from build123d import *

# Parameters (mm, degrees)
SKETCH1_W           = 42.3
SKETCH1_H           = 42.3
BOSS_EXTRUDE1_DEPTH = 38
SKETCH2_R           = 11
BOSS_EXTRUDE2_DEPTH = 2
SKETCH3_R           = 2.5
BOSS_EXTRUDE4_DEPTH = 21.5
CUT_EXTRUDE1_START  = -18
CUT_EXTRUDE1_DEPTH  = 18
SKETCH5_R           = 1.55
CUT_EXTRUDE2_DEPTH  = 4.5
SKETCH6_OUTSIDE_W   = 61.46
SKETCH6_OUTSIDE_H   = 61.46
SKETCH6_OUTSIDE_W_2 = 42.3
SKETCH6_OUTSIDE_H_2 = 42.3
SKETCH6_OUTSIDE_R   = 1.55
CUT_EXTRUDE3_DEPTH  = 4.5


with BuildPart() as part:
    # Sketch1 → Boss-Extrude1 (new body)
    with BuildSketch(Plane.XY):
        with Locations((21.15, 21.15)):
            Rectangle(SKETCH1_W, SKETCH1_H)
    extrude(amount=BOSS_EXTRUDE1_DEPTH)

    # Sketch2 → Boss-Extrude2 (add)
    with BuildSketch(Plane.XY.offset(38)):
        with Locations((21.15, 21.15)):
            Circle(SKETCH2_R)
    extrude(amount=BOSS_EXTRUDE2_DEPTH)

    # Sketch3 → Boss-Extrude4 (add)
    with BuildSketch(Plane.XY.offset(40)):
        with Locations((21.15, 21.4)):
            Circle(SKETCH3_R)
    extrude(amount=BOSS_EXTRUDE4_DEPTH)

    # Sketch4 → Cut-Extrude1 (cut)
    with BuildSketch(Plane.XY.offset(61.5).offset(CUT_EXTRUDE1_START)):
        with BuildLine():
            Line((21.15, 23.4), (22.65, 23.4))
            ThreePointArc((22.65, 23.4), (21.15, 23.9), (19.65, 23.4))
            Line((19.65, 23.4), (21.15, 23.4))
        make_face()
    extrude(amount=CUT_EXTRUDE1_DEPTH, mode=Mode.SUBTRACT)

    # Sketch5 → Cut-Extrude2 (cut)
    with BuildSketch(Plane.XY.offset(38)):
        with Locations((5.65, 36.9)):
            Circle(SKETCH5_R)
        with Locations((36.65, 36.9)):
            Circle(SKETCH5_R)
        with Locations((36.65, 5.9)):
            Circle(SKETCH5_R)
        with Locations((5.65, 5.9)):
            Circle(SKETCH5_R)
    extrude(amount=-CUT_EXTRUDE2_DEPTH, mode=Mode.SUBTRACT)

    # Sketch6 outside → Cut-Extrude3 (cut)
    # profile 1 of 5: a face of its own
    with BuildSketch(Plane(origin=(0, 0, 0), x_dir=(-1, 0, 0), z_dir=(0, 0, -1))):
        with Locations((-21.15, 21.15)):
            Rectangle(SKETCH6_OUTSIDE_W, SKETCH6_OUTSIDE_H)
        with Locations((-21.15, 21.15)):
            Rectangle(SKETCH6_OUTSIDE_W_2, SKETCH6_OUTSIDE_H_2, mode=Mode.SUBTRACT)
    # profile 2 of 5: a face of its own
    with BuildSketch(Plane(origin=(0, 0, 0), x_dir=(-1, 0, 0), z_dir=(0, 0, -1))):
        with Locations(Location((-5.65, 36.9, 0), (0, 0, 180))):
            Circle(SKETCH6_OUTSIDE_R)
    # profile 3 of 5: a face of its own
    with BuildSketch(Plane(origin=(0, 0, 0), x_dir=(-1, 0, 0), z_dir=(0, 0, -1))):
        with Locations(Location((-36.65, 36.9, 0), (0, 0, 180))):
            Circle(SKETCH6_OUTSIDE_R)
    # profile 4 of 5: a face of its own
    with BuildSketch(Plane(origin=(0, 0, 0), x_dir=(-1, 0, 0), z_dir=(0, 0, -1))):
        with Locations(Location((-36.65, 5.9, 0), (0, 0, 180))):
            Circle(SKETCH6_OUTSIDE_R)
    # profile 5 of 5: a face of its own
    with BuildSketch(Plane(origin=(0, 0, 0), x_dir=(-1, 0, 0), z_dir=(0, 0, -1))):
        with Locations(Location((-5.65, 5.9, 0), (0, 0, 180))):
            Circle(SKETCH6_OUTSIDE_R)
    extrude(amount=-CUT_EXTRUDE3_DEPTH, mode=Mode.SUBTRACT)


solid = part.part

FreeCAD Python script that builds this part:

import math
import FreeCAD as App
import Part
import Sketcher
from FreeCAD import Vector

doc = App.newDocument("Part")
body = doc.addObject("PartDesign::Body", "Body")

sketch1 = body.newObject("Sketcher::SketchObject", "Sketch")
sketch1.AttachmentSupport = (doc.getObject("XY_Plane"), [""])
sketch1.MapMode = "FlatFace"
sketch1.addGeometry(Part.LineSegment(Vector(0, 42.3, 0), Vector(0, 0, 0)), False)
sketch1.addGeometry(Part.LineSegment(Vector(0, 0, 0), Vector(42.3, 0, 0)), False)
sketch1.addGeometry(Part.LineSegment(Vector(42.3, 0, 0), Vector(42.3, 42.3, 0)), False)
sketch1.addGeometry(Part.LineSegment(Vector(42.3, 42.3, 0), Vector(0, 42.3, 0)), False)
sketch1.addConstraint(Sketcher.Constraint("Coincident", 0, 2, 1, 1))
sketch1.addConstraint(Sketcher.Constraint("Coincident", 1, 2, 2, 1))
sketch1.addConstraint(Sketcher.Constraint("Coincident", 2, 2, 3, 1))
sketch1.addConstraint(Sketcher.Constraint("Coincident", 3, 2, 0, 1))
sketch1.addConstraint(Sketcher.Constraint("Vertical", 0))
sketch1.addConstraint(Sketcher.Constraint("Horizontal", 1))
sketch1.addConstraint(Sketcher.Constraint("Vertical", 2))
sketch1.addConstraint(Sketcher.Constraint("Horizontal", 3))
sketch1.addConstraint(Sketcher.Constraint("Coincident", 0, 2, -1, 1))
sketch1.addConstraint(Sketcher.Constraint("Equal", 3, 0))
sketch1.addConstraint(Sketcher.Constraint("DistanceX", 1, 1, 1, 2, 42.3))
pad1 = body.newObject("PartDesign::Pad", "Pad")
pad1.Profile = sketch1
pad1.Length = 38

sketch2 = body.newObject("Sketcher::SketchObject", "Sketch001")
sketch2.AttachmentSupport = (doc.getObject("XY_Plane"), [""])
sketch2.MapMode = "FlatFace"
sketch2.AttachmentOffset = App.Placement(Vector(0, 0, 38), App.Rotation())
sketch2.addGeometry(Part.Circle(Vector(21.15, 21.15, 0), Vector(0, 0, 1), 11), False)
sketch2.addConstraint(Sketcher.Constraint("Diameter", 0, 22.0))
sketch2.addConstraint(Sketcher.Constraint("DistanceX", -1, 1, 0, 3, 21.15))
sketch2.addConstraint(Sketcher.Constraint("DistanceY", -1, 1, 0, 3, 21.15))
pad2 = body.newObject("PartDesign::Pad", "Pad001")
pad2.Profile = sketch2
pad2.Length = 2

sketch3 = body.newObject("Sketcher::SketchObject", "Sketch002")
sketch3.AttachmentSupport = (doc.getObject("XY_Plane"), [""])
sketch3.MapMode = "FlatFace"
sketch3.AttachmentOffset = App.Placement(Vector(0, 0, 40), App.Rotation())
sketch3.addGeometry(Part.Circle(Vector(21.15, 21.4, 0), Vector(0, 0, 1), 2.5), False)
sketch3.addConstraint(Sketcher.Constraint("Diameter", 0, 5.0))
sketch3.addConstraint(Sketcher.Constraint("DistanceY", -1, 1, 0, 3, 21.4))
sketch3.addConstraint(Sketcher.Constraint("DistanceX", -1, 1, 0, 3, 21.15))
pad3 = body.newObject("PartDesign::Pad", "Pad002")
pad3.Profile = sketch3
pad3.Length = 21.5

sketch4 = body.newObject("Sketcher::SketchObject", "Sketch003")
sketch4.AttachmentSupport = (doc.getObject("XY_Plane"), [""])
sketch4.MapMode = "FlatFace"
sketch4.AttachmentOffset = App.Placement(Vector(0, 0, 43.5), App.Rotation())
sketch4.addGeometry(Part.ArcOfCircle(Part.Circle(Vector(21.15, 21.4, 0), Vector(0, 0, 1), 2.5), math.radians(53.130102), math.radians(126.869898)), False)
sketch4.addGeometry(Part.LineSegment(Vector(19.65, 23.4, 0), Vector(22.65, 23.4, 0)), False)
sketch4.addConstraint(Sketcher.Constraint("Coincident", 0, 1, 1, 2))
sketch4.addConstraint(Sketcher.Constraint("Coincident", 1, 1, 0, 2))
sketch4.addConstraint(Sketcher.Constraint("Horizontal", 1))
sketch4.addConstraint(Sketcher.Constraint("Radius", 0, 2.5))
sketch4.addConstraint(Sketcher.Constraint("DistanceX", 1, 1, 1, 2, 3.0))
sketch4.addConstraint(Sketcher.Constraint("DistanceY", -1, 1, 0, 3, 21.4))
sketch4.addConstraint(Sketcher.Constraint("DistanceX", -1, 1, 0, 3, 21.15))
pocket1 = body.newObject("PartDesign::Pocket", "Pocket")
pocket1.Profile = sketch4
pocket1.Length = 18
pocket1.Reversed = True

sketch5 = body.newObject("Sketcher::SketchObject", "Sketch004")
sketch5.AttachmentSupport = (doc.getObject("XY_Plane"), [""])
sketch5.MapMode = "FlatFace"
sketch5.AttachmentOffset = App.Placement(Vector(0, 0, 38), App.Rotation())
sketch5.addGeometry(Part.Circle(Vector(5.65, 36.9, 0), Vector(0, 0, 1), 1.55), False)
sketch5.addGeometry(Part.Circle(Vector(36.65, 36.9, 0), Vector(0, 0, 1), 1.55), False)
sketch5.addGeometry(Part.Circle(Vector(36.65, 5.9, 0), Vector(0, 0, 1), 1.55), False)
sketch5.addGeometry(Part.Circle(Vector(5.65, 5.9, 0), Vector(0, 0, 1), 1.55), False)
sketch5.addConstraint(Sketcher.Constraint("Equal", 0, 1))
sketch5.addConstraint(Sketcher.Constraint("Equal", 1, 2))
sketch5.addConstraint(Sketcher.Constraint("Equal", 2, 3))
sketch5.addConstraint(Sketcher.Constraint("Horizontal", 0, 3, 1, 3))
sketch5.addConstraint(Sketcher.Constraint("Horizontal", 2, 3, 3, 3))
sketch5.addConstraint(Sketcher.Constraint("Vertical", 1, 3, 2, 3))
sketch5.addConstraint(Sketcher.Constraint("Vertical", 0, 3, 3, 3))
sketch5.addConstraint(Sketcher.Constraint("Diameter", 0, 3.1))
sketch5.addConstraint(Sketcher.Constraint("DistanceX", 0, 3, 1, 3, 31.0))
sketch5.addConstraint(Sketcher.Constraint("DistanceY", 2, 3, 1, 3, 31.0))
sketch5.addConstraint(Sketcher.Constraint("DistanceY", -1, 1, 0, 3, 36.9))
sketch5.addConstraint(Sketcher.Constraint("DistanceX", -1, 1, 0, 3, 5.65))
pocket2 = body.newObject("PartDesign::Pocket", "Pocket001")
pocket2.Profile = sketch5
pocket2.Length = 4.5

sketch6 = body.newObject("Sketcher::SketchObject", "Sketch005")
sketch6.AttachmentSupport = (doc.getObject("XY_Plane"), [""])
sketch6.MapMode = "FlatFace"
sketch6.addGeometry(Part.LineSegment(Vector(51.88, 51.88, 0), Vector(51.88, -9.58, 0)), False)
sketch6.addGeometry(Part.LineSegment(Vector(51.88, -9.58, 0), Vector(-9.58, -9.58, 0)), False)
sketch6.addGeometry(Part.LineSegment(Vector(-9.58, -9.58, 0), Vector(-9.58, 51.88, 0)), False)
sketch6.addGeometry(Part.LineSegment(Vector(-9.58, 51.88, 0), Vector(51.88, 51.88, 0)), False)
sketch6.addGeometry(Part.LineSegment(Vector(0, 0, 0), Vector(42.3, 0, 0)), False)
sketch6.addGeometry(Part.LineSegment(Vector(42.3, 0, 0), Vector(42.3, 42.3, 0)), False)
sketch6.addGeometry(Part.LineSegment(Vector(42.3, 42.3, 0), Vector(0, 42.3, 0)), False)
sketch6.addGeometry(Part.LineSegment(Vector(0, 42.3, 0), Vector(0, 0, 0)), False)
sketch6.addGeometry(Part.Circle(Vector(5.65, 36.9, 0), Vector(0, 0, 1), 1.55), False)
sketch6.addGeometry(Part.Circle(Vector(36.65, 36.9, 0), Vector(0, 0, 1), 1.55), False)
sketch6.addGeometry(Part.Circle(Vector(36.65, 5.9, 0), Vector(0, 0, 1), 1.55), False)
sketch6.addGeometry(Part.Circle(Vector(5.65, 5.9, 0), Vector(0, 0, 1), 1.55), False)
sketch6.addConstraint(Sketcher.Constraint("Coincident", 0, 2, 1, 1))
sketch6.addConstraint(Sketcher.Constraint("Coincident", 1, 2, 2, 1))
sketch6.addConstraint(Sketcher.Constraint("Coincident", 2, 2, 3, 1))
sketch6.addConstraint(Sketcher.Constraint("Coincident", 3, 2, 0, 1))
sketch6.addConstraint(Sketcher.Constraint("Coincident", 4, 2, 5, 1))
sketch6.addConstraint(Sketcher.Constraint("Coincident", 5, 2, 6, 1))
sketch6.addConstraint(Sketcher.Constraint("Coincident", 6, 2, 7, 1))
sketch6.addConstraint(Sketcher.Constraint("Coincident", 7, 2, 4, 1))
sketch6.addConstraint(Sketcher.Constraint("Vertical", 0))
sketch6.addConstraint(Sketcher.Constraint("Horizontal", 1))
sketch6.addConstraint(Sketcher.Constraint("Vertical", 2))
sketch6.addConstraint(Sketcher.Constraint("Horizontal", 3))
sketch6.addConstraint(Sketcher.Constraint("Horizontal", 4))
sketch6.addConstraint(Sketcher.Constraint("Vertical", 5))
sketch6.addConstraint(Sketcher.Constraint("Horizontal", 6))
sketch6.addConstraint(Sketcher.Constraint("Vertical", 7))
sketch6.addConstraint(Sketcher.Constraint("Coincident", 7, 2, -1, 1))
sketch6.addConstraint(Sketcher.Constraint("Equal", 8, 9))
sketch6.addConstraint(Sketcher.Constraint("Equal", 9, 10))
sketch6.addConstraint(Sketcher.Constraint("Equal", 10, 11))
sketch6.addConstraint(Sketcher.Constraint("Horizontal", 8, 3, 9, 3))
sketch6.addConstraint(Sketcher.Constraint("Horizontal", 10, 3, 11, 3))
sketch6.addConstraint(Sketcher.Constraint("Vertical", 9, 3, 10, 3))
sketch6.addConstraint(Sketcher.Constraint("Vertical", 8, 3, 11, 3))
sketch6.addConstraint(Sketcher.Constraint("Equal", 3, 0))
sketch6.addConstraint(Sketcher.Constraint("Equal", 6, 5))
sketch6.addConstraint(Sketcher.Constraint("Diameter", 8, 3.1))
sketch6.addConstraint(Sketcher.Constraint("DistanceX", 4, 1, 4, 2, 42.3))
sketch6.addConstraint(Sketcher.Constraint("DistanceX", 8, 3, 9, 3, 31.0))
sketch6.addConstraint(Sketcher.Constraint("DistanceY", 10, 3, 9, 3, 31.0))
sketch6.addConstraint(Sketcher.Constraint("DistanceX", 1, 2, 1, 1, 61.46))
sketch6.addConstraint(Sketcher.Constraint("DistanceY", -1, 1, 8, 3, 36.9))
sketch6.addConstraint(Sketcher.Constraint("DistanceX", -1, 1, 8, 3, 5.65))
sketch6.addConstraint(Sketcher.Constraint("DistanceX", -1, 1, 0, 2, 51.88))
sketch6.addConstraint(Sketcher.Constraint("DistanceY", 0, 2, -1, 1, 9.58))
pocket3 = body.newObject("PartDesign::Pocket", "Pocket002")
pocket3.Profile = sketch6
pocket3.Length = 4.5
pocket3.Reversed = True

doc.recompute()
